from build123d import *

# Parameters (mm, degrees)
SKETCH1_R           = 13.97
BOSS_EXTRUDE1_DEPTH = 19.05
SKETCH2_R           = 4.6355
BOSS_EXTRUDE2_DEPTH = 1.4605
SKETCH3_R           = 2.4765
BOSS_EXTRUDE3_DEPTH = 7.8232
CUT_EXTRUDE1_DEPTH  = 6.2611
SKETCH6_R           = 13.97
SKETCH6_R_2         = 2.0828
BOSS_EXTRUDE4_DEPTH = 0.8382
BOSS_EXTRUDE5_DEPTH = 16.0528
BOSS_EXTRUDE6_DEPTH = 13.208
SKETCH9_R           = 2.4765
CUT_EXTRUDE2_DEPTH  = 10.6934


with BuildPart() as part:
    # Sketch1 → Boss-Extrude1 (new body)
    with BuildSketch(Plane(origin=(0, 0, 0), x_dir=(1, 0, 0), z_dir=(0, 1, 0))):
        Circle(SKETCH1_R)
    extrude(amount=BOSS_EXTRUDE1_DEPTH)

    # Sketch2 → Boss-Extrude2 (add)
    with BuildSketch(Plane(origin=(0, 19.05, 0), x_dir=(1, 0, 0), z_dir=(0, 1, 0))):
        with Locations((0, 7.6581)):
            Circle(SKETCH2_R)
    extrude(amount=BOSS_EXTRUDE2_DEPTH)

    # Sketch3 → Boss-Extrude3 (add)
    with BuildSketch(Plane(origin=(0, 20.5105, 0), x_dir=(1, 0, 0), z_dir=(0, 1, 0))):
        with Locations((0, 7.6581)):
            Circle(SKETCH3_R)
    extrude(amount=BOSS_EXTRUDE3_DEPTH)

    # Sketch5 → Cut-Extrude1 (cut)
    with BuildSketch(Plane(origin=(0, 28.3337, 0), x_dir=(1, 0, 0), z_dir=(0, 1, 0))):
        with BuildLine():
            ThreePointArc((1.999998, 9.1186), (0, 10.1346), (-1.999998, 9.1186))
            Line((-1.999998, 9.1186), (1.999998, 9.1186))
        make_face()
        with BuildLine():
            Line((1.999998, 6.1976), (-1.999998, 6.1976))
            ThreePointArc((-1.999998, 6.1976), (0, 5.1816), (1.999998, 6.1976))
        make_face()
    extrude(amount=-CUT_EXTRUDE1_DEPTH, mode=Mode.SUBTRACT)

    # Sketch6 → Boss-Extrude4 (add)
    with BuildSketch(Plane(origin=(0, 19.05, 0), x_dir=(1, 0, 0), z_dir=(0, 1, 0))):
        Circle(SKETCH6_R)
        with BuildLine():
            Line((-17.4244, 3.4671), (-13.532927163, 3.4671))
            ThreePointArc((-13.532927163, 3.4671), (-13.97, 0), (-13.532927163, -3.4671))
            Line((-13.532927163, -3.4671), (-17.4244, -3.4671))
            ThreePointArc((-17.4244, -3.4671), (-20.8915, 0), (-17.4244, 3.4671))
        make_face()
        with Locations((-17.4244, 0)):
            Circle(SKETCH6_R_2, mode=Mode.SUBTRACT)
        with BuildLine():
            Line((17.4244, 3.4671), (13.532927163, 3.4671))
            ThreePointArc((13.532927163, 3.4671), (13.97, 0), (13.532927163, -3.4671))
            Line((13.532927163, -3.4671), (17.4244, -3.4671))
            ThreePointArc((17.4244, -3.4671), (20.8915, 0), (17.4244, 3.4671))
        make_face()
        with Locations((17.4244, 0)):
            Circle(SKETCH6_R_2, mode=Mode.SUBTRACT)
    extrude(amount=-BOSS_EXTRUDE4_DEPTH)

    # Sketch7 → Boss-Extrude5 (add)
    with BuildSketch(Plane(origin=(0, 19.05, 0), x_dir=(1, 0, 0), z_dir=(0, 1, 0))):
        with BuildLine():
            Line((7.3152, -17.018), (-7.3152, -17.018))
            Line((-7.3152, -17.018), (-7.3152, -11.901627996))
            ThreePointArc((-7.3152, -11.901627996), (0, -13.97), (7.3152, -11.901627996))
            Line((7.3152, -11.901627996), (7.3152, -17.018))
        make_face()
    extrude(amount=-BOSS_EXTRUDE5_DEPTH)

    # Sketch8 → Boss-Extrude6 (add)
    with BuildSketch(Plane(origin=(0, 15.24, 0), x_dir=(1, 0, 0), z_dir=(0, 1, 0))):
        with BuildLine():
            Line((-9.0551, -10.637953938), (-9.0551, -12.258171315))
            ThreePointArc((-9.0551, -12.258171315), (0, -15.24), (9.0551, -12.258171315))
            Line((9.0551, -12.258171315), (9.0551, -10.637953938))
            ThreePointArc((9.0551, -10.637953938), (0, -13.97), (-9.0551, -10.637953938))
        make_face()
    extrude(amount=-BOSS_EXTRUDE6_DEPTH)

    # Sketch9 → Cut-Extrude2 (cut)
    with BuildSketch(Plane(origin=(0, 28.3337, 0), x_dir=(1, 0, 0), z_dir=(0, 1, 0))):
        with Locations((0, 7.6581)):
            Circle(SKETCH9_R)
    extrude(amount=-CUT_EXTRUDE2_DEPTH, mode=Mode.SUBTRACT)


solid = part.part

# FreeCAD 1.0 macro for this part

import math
import FreeCAD as App
import Part
import Sketcher
Q = App.Units.Quantity

doc = App.newDocument("Part")
body = doc.addObject("PartDesign::Body", "Body")

sketch1 = doc.addObject("Sketcher::SketchObject", "Sketch")
body.addObject(sketch1)
sketch1.AttachmentSupport = (doc.XZ_Plane, [""])
sketch1.MapMode = "FlatFace"
sketch1.addGeometry(Part.Circle(App.Vector(0, 0, 0), App.Vector(0, 0, 1), 14), False)
sketch1.addConstraint(Sketcher.Constraint("Coincident", 0, 3, -1, 1))
sketch1.addConstraint(Sketcher.Constraint("Diameter", 0, Q("1.1 in")))
pad1 = doc.addObject("PartDesign::Pad", "Pad")
body.addObject(pad1)
pad1.Profile = sketch1
pad1.Length = Q("0.75 in")
pad1.Reversed = True

sketch2 = doc.addObject("Sketcher::SketchObject", "Sketch001")
body.addObject(sketch2)
sketch2.AttachmentSupport = (doc.XZ_Plane, [""])
sketch2.MapMode = "FlatFace"
sketch2.AttachmentOffset = App.Placement(App.Vector(0, 0, -0.75 * 25.4), App.Rotation())
sketch2.addGeometry(Part.Circle(App.Vector(0, -7.7, 0), App.Vector(0, 0, 1), 4.6), False)
sketch2.addConstraint(Sketcher.Constraint("PointOnObject", 0, 3, -2))
sketch2.addConstraint(Sketcher.Constraint("Diameter", 0, Q("0.365 in")))
sketch2.addConstraint(Sketcher.Constraint("DistanceY", 0, 3, -1, 1, Q("0.3015 in")))
pad2 = doc.addObject("PartDesign::Pad", "Pad001")
body.addObject(pad2)
pad2.Profile = sketch2
pad2.Length = Q("0.0575 in")
pad2.Reversed = True

sketch3 = doc.addObject("Sketcher::SketchObject", "Sketch002")
body.addObject(sketch3)
sketch3.AttachmentSupport = (doc.XZ_Plane, [""])
sketch3.MapMode = "FlatFace"
sketch3.AttachmentOffset = App.Placement(App.Vector(0, 0, -0.8075 * 25.4), App.Rotation())
sketch3.addGeometry(Part.Circle(App.Vector(0, -7.7, 0), App.Vector(0, 0, 1), 2.5), False)
sketch3.addConstraint(Sketcher.Constraint("PointOnObject", 0, 3, -2))
sketch3.addConstraint(Sketcher.Constraint("Diameter", 0, Q("0.195 in")))
sketch3.addConstraint(Sketcher.Constraint("DistanceY", 0, 3, -1, 1, Q("0.3015 in")))
pad3 = doc.addObject("PartDesign::Pad", "Pad002")
body.addObject(pad3)
pad3.Profile = sketch3
pad3.Length = Q("0.308 in")
pad3.Reversed = True

sketch4 = doc.addObject("Sketcher::SketchObject", "Sketch003")
body.addObject(sketch4)
sketch4.AttachmentSupport = (doc.XZ_Plane, [""])
sketch4.MapMode = "FlatFace"
sketch4.AttachmentOffset = App.Placement(App.Vector(0, 0, -1.1155 * 25.4), App.Rotation())
sketch4.addGeometry(Part.ArcOfCircle(Part.Circle(App.Vector(0, -7.7, 0), App.Vector(0, 0, 1), 2.5), math.radians(-144), math.radians(-36)), False)
sketch4.addGeometry(Part.LineSegment(App.Vector(-2, -9.1, 0), App.Vector(2, -9.1, 0)), False)
sketch4.addGeometry(Part.LineSegment(App.Vector(2, -6.2, 0), App.Vector(-2, -6.2, 0)), False)
sketch4.addGeometry(Part.ArcOfCircle(Part.Circle(App.Vector(0, -7.7, 0), App.Vector(0, 0, 1), 2.5), math.radians(36), math.radians(144)), False)
sketch4.addConstraint(Sketcher.Constraint("Coincident", 0, 1, 1, 1))
sketch4.addConstraint(Sketcher.Constraint("Coincident", 1, 2, 0, 2))
sketch4.addConstraint(Sketcher.Constraint("Coincident", 2, 1, 3, 1))
sketch4.addConstraint(Sketcher.Constraint("Coincident", 3, 2, 2, 2))
sketch4.addConstraint(Sketcher.Constraint("Horizontal", 1))
sketch4.addConstraint(Sketcher.Constraint("Horizontal", 2))
sketch4.addConstraint(Sketcher.Constraint("Coincident", 3, 3, 0, 3))
sketch4.addConstraint(Sketcher.Constraint("Equal", 0, 3))
sketch4.addConstraint(Sketcher.Constraint("PointOnObject", 0, 3, -2))
sketch4.addConstraint(Sketcher.Constraint("Vertical", 1, 2, 2, 1))
sketch4.addConstraint(Sketcher.Constraint("Radius", 0, Q("0.0975 in")))
sketch4.addConstraint(Sketcher.Constraint("DistanceY", 0, 1, -1, 1, Q("0.359 in")))
sketch4.addConstraint(Sketcher.Constraint("DistanceY", 2, 1, -1, 1, Q("0.244 in")))
pocket1 = doc.addObject("PartDesign::Pocket", "Pocket")
body.addObject(pocket1)
pocket1.Profile = sketch4
pocket1.Length = Q("0.2465 in")
pocket1.Reversed = True

sketch5 = doc.addObject("Sketcher::SketchObject", "Sketch004")
body.addObject(sketch5)
sketch5.AttachmentSupport = (doc.XZ_Plane, [""])
sketch5.MapMode = "FlatFace"
sketch5.AttachmentOffset = App.Placement(App.Vector(0, 0, -0.75 * 25.4), App.Rotation())
sketch5.addGeometry(Part.LineSegment(App.Vector(-13.5, -3.5, 0), App.Vector(-17.4, -3.5, 0)), False)
sketch5.addGeometry(Part.ArcOfCircle(Part.Circle(App.Vector(-17.4, 0, 0), App.Vector(0, 0, 1), 3.5), math.radians(90), math.radians(270)), False)
sketch5.addGeometry(Part.LineSegment(App.Vector(-17.4, 3.5, 0), App.Vector(-13.5, 3.5, 0)), False)
sketch5.addGeometry(Part.ArcOfCircle(Part.Circle(App.Vector(0, 0, 0), App.Vector(0, 0, 1), 14), math.radians(14), math.radians(166)), False)
sketch5.addGeometry(Part.LineSegment(App.Vector(13.5, 3.5, 0), App.Vector(17.4, 3.5, 0)), False)
sketch5.addGeometry(Part.ArcOfCircle(Part.Circle(App.Vector(17.4, 0, 0), App.Vector(0, 0, 1), 3.5), math.radians(-90), math.radians(90)), False)
sketch5.addGeometry(Part.LineSegment(App.Vector(17.4, -3.5, 0), App.Vector(13.5, -3.5, 0)), False)
sketch5.addGeometry(Part.ArcOfCircle(Part.Circle(App.Vector(0, 0, 0), App.Vector(0, 0, 1), 14), math.radians(-166), math.radians(-14)), False)
sketch5.addGeometry(Part.Circle(App.Vector(-17.4, 0, 0), App.Vector(0, 0, 1), 2.1), False)
sketch5.addGeometry(Part.Circle(App.Vector(17.4, 0, 0), App.Vector(0, 0, 1), 2.1), False)
sketch5.addConstraint(Sketcher.Constraint("Tangent", 0, 2, 1, 2))
sketch5.addConstraint(Sketcher.Constraint("Tangent", 1, 1, 2, 1))
sketch5.addConstraint(Sketcher.Constraint("Coincident", 2, 2, 3, 2))
sketch5.addConstraint(Sketcher.Constraint("Coincident", 3, 1, 4, 1))
sketch5.addConstraint(Sketcher.Constraint("Tangent", 4, 2, 5, 2))
sketch5.addConstraint(Sketcher.Constraint("Tangent", 5, 1, 6, 1))
sketch5.addConstraint(Sketcher.Constraint("Coincident", 6, 2, 7, 2))
sketch5.addConstraint(Sketcher.Constraint("Coincident", 7, 1, 0, 1))
sketch5.addConstraint(Sketcher.Constraint("Horizontal", 0))
sketch5.addConstraint(Sketcher.Constraint("Horizontal", 2))
sketch5.addConstraint(Sketcher.Constraint("Horizontal", 4))
sketch5.addConstraint(Sketcher.Constraint("Horizontal", 6))
sketch5.addConstraint(Sketcher.Constraint("Coincident", 3, 3, -1, 1))
sketch5.addConstraint(Sketcher.Constraint("Coincident", 7, 3, -1, 1))
sketch5.addConstraint(Sketcher.Constraint("Coincident", 8, 3, 1, 3))
sketch5.addConstraint(Sketcher.Constraint("Coincident", 9, 3, 5, 3))
sketch5.addConstraint(Sketcher.Constraint("Equal", 1, 5))
sketch5.addConstraint(Sketcher.Constraint("Equal", 3, 7))
sketch5.addConstraint(Sketcher.Constraint("Equal", 8, 9))
sketch5.addConstraint(Sketcher.Constraint("Symmetric", 1, 3, 5, 3, -1, 1))
sketch5.addConstraint(Sketcher.Constraint("PointOnObject", 1, 3, -1))
sketch5.addConstraint(Sketcher.Constraint("Radius", 3, Q("0.55 in")))
sketch5.addConstraint(Sketcher.Constraint("Diameter", 8, Q("0.164 in")))
sketch5.addConstraint(Sketcher.Constraint("Radius", 1, Q("0.1365 in")))
sketch5.addConstraint(Sketcher.Constraint("DistanceX", 1, 3, -1, 1, Q("0.686 in")))
pad4 = doc.addObject("PartDesign::Pad", "Pad003")
body.addObject(pad4)
pad4.Profile = sketch5
pad4.Length = Q("0.033 in")

sketch6 = doc.addObject("Sketcher::SketchObject", "Sketch005")
body.addObject(sketch6)
sketch6.AttachmentSupport = (doc.XZ_Plane, [""])
sketch6.MapMode = "FlatFace"
sketch6.AttachmentOffset = App.Placement(App.Vector(0, 0, -0.75 * 25.4), App.Rotation())
sketch6.addGeometry(Part.LineSegment(App.Vector(-7, 17, 0), App.Vector(7, 17, 0)), False)
sketch6.addGeometry(Part.LineSegment(App.Vector(7, 17, 0), App.Vector(7, 12, 0)), False)
sketch6.addGeometry(Part.ArcOfCircle(Part.Circle(App.Vector(0, 0, 0), App.Vector(0, 0, 1), 14), math.radians(58), math.radians(122)), False)
sketch6.addGeometry(Part.LineSegment(App.Vector(-7, 12, 0), App.Vector(-7, 17, 0)), False)
sketch6.addConstraint(Sketcher.Constraint("Coincident", 0, 2, 1, 1))
sketch6.addConstraint(Sketcher.Constraint("Coincident", 1, 2, 2, 1))
sketch6.addConstraint(Sketcher.Constraint("Coincident", 2, 2, 3, 1))
sketch6.addConstraint(Sketcher.Constraint("Coincident", 3, 2, 0, 1))
sketch6.addConstraint(Sketcher.Constraint("Horizontal", 0))
sketch6.addConstraint(Sketcher.Constraint("Vertical", 1))
sketch6.addConstraint(Sketcher.Constraint("Vertical", 3))
sketch6.addConstraint(Sketcher.Constraint("Coincident", 2, 3, -1, 1))
sketch6.addConstraint(Sketcher.Constraint("Horizontal", 1, 2, 2, 2))
sketch6.addConstraint(Sketcher.Constraint("Radius", 2, Q("0.55 in")))
sketch6.addConstraint(Sketcher.Constraint("DistanceX", 0, 1, 0, 2, Q("0.576 in")))
sketch6.addConstraint(Sketcher.Constraint("DistanceY", -1, 1, 0, 2, Q("0.67 in")))
pad5 = doc.addObject("PartDesign::Pad", "Pad004")
body.addObject(pad5)
pad5.Profile = sketch6
pad5.Length = Q("0.632 in")

sketch7 = doc.addObject("Sketcher::SketchObject", "Sketch006")
body.addObject(sketch7)
sketch7.AttachmentSupport = (doc.XZ_Plane, [""])
sketch7.MapMode = "FlatFace"
sketch7.AttachmentOffset = App.Placement(App.Vector(0, 0, -0.6 * 25.4), App.Rotation())
sketch7.addGeometry(Part.LineSegment(App.Vector(-9.1, 10.6, 0), App.Vector(-9.1, 12.3, 0)), False)
sketch7.addGeometry(Part.ArcOfCircle(Part.Circle(App.Vector(0, 0, 0), App.Vector(0, 0, 1), 15.2), math.radians(54), math.radians(126)), False)
sketch7.addGeometry(Part.LineSegment(App.Vector(9.1, 12.3, 0), App.Vector(9.1, 10.6, 0)), False)
sketch7.addGeometry(Part.ArcOfCircle(Part.Circle(App.Vector(0, 0, 0), App.Vector(0, 0, 1), 14), math.radians(50), math.radians(130)), False)
sketch7.addConstraint(Sketcher.Constraint("Coincident", 0, 2, 1, 2))
sketch7.addConstraint(Sketcher.Constraint("Coincident", 1, 1, 2, 1))
sketch7.addConstraint(Sketcher.Constraint("Coincident", 2, 2, 3, 1))
sketch7.addConstraint(Sketcher.Constraint("Coincident", 3, 2, 0, 1))
sketch7.addConstraint(Sketcher.Constraint("Vertical", 0))
sketch7.addConstraint(Sketcher.Constraint("Vertical", 2))
sketch7.addConstraint(Sketcher.Constraint("Coincident", 1, 3, -1, 1))
sketch7.addConstraint(Sketcher.Constraint("Coincident", 3, 3, -1, 1))
sketch7.addConstraint(Sketcher.Constraint("Horizontal", 0, 2, 1, 1))
sketch7.addConstraint(Sketcher.Constraint("Radius", 1, Q("0.6 in")))
sketch7.addConstraint(Sketcher.Constraint("Radius", 3, Q("0.55 in")))
sketch7.addConstraint(Sketcher.Constraint("DistanceX", 0, 2, 1, 1, Q("0.713 in")))
pad6 = doc.addObject("PartDesign::Pad", "Pad005")
body.addObject(pad6)
pad6.Profile = sketch7
pad6.Length = Q("0.52 in")

sketch8 = doc.addObject("Sketcher::SketchObject", "Sketch007")
body.addObject(sketch8)
sketch8.AttachmentSupport = (doc.XZ_Plane, [""])
sketch8.MapMode = "FlatFace"
sketch8.AttachmentOffset = App.Placement(App.Vector(0, 0, -1.1155 * 25.4), App.Rotation())
sketch8.addGeometry(Part.Circle(App.Vector(0, -7.7, 0), App.Vector(0, 0, 1), 2.5), False)
sketch8.addConstraint(Sketcher.Constraint("PointOnObject", 0, 3, -2))
sketch8.addConstraint(Sketcher.Constraint("Diameter", 0, Q("0.195 in")))
sketch8.addConstraint(Sketcher.Constraint("DistanceY", 0, 3, -1, 1, Q("0.3015 in")))
pocket2 = doc.addObject("PartDesign::Pocket", "Pocket001")
body.addObject(pocket2)
pocket2.Profile = sketch8
pocket2.Length = Q("0.421 in")
pocket2.Reversed = True

doc.recompute()
